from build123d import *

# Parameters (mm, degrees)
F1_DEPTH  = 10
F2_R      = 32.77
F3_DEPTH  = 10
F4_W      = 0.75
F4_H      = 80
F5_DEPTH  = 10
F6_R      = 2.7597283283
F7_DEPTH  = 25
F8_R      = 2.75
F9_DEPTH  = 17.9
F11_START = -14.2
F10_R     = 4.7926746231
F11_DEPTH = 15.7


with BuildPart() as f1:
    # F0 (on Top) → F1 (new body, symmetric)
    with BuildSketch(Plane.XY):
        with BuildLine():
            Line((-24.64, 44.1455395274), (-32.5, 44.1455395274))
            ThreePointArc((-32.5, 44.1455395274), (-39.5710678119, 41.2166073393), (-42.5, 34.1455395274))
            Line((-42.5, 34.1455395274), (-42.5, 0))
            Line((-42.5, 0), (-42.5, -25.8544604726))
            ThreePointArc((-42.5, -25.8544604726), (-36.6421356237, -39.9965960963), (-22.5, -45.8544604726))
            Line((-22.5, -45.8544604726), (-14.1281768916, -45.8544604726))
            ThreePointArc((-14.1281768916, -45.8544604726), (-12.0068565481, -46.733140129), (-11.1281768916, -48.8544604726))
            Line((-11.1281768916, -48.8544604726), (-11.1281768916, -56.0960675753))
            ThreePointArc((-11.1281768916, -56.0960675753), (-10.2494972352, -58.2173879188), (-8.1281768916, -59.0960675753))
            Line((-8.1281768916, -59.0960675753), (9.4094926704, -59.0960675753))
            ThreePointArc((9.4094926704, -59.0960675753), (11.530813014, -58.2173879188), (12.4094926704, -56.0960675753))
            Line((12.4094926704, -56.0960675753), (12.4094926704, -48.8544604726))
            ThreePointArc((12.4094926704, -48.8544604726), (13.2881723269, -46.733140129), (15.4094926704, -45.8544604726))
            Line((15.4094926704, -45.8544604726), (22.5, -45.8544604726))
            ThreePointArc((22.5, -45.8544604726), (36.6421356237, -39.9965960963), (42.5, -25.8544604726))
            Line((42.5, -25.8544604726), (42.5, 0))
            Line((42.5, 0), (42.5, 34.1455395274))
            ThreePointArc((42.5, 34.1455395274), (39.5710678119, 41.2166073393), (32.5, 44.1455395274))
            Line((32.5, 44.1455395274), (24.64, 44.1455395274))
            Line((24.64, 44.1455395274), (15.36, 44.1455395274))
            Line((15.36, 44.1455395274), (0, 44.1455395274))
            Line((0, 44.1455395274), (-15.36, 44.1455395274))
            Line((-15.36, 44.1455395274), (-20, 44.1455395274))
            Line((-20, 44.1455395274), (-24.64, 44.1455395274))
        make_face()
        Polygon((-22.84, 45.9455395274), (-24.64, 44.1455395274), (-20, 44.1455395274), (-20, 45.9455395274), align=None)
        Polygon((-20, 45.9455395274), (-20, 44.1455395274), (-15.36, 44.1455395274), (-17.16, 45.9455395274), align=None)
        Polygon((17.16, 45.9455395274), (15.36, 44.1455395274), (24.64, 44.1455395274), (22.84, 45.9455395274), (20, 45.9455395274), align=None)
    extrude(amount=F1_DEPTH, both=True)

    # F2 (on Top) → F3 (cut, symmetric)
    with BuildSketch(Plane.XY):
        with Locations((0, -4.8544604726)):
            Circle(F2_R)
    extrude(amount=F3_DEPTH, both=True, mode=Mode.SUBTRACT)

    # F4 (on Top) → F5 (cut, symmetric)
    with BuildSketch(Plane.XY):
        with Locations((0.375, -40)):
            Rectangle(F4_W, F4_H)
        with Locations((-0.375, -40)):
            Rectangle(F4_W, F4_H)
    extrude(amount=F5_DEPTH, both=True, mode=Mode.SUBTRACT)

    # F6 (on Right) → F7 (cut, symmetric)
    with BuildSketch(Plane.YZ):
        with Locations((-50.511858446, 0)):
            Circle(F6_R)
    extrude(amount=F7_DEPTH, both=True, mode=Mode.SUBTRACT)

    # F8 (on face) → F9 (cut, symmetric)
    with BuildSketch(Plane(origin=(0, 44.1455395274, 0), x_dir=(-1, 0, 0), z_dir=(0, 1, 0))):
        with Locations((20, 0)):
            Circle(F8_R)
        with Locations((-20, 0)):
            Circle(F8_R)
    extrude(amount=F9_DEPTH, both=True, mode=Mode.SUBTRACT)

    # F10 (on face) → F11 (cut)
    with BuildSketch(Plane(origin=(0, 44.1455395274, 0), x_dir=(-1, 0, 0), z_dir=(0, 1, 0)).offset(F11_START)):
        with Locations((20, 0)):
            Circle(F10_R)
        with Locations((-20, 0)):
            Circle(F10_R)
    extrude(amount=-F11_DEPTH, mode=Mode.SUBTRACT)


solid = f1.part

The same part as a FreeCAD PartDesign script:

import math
import FreeCAD as App
import Part
import Sketcher
Q = App.Units.Quantity


def add_polygon(sketch, points):
    """Adds a closed chain of lines whose ends are joined by coincident constraints."""
    first, n = sketch.GeometryCount, len(points)
    for a, b in zip(points, points[1:] + points[:1]):
        sketch.addGeometry(Part.LineSegment(App.Vector(*a, 0), App.Vector(*b, 0)), False)
    for i in range(n):
        sketch.addConstraint(Sketcher.Constraint("Coincident", first + i, 2, first + (i + 1) % n, 1))

doc = App.newDocument("Part")
body = doc.addObject("PartDesign::Body", "Body")

sketch1 = body.newObject("Sketcher::SketchObject", "Sketch")
sketch1.AttachmentSupport = (doc.getObject("XY_Plane"), [""])
sketch1.MapMode = "FlatFace"
sketch1.addGeometry([
    Part.ArcOfCircle(Part.Circle(App.Vector(-32.5, 34.1, 0), App.Vector(0, 0, 1), 10), math.radians(90), math.radians(180)),
    Part.LineSegment(App.Vector(-42.5, 34.1, 0), App.Vector(-42.5, -25.9, 0)),
    Part.ArcOfCircle(Part.Circle(App.Vector(-22.5, -25.9, 0), App.Vector(0, 0, 1), 20), math.radians(-180), math.radians(-90)),
    Part.LineSegment(App.Vector(-22.5, -45.9, 0), App.Vector(-14.1, -45.9, 0)),
    Part.ArcOfCircle(Part.Circle(App.Vector(-14.1, -48.9, 0), App.Vector(0, 0, 1), 3), math.radians(0), math.radians(90)),
    Part.LineSegment(App.Vector(-11.1, -48.9, 0), App.Vector(-11.1, -56.1, 0)),
    Part.ArcOfCircle(Part.Circle(App.Vector(-8.1, -56.1, 0), App.Vector(0, 0, 1), 3), math.radians(180), math.radians(270)),
    Part.LineSegment(App.Vector(-8.1, -59.1, 0), App.Vector(9.4, -59.1, 0)),
    Part.ArcOfCircle(Part.Circle(App.Vector(9.4, -56.1, 0), App.Vector(0, 0, 1), 3), math.radians(-90), math.radians(0)),
    Part.LineSegment(App.Vector(12.4, -56.1, 0), App.Vector(12.4, -48.9, 0)),
    Part.ArcOfCircle(Part.Circle(App.Vector(15.4, -48.9, 0), App.Vector(0, 0, 1), 3), math.radians(90), math.radians(180)),
    Part.LineSegment(App.Vector(15.4, -45.9, 0), App.Vector(22.5, -45.9, 0)),
    Part.ArcOfCircle(Part.Circle(App.Vector(22.5, -25.9, 0), App.Vector(0, 0, 1), 20), math.radians(-90), math.radians(0)),
    Part.LineSegment(App.Vector(42.5, -25.9, 0), App.Vector(42.5, 34.1, 0)),
    Part.ArcOfCircle(Part.Circle(App.Vector(32.5, 34.1, 0), App.Vector(0, 0, 1), 10), math.radians(0), math.radians(90)),
    Part.LineSegment(App.Vector(32.5, 44.1, 0), App.Vector(24.6, 44.1, 0)),
    Part.LineSegment(App.Vector(24.6, 44.1, 0), App.Vector(22.8, 45.9, 0)),
    Part.LineSegment(App.Vector(22.8, 45.9, 0), App.Vector(17.2, 45.9, 0)),
    Part.LineSegment(App.Vector(17.2, 45.9, 0), App.Vector(15.4, 44.1, 0)),
    Part.LineSegment(App.Vector(15.4, 44.1, 0), App.Vector(-15.4, 44.1, 0)),
    Part.LineSegment(App.Vector(-15.4, 44.1, 0), App.Vector(-17.2, 45.9, 0)),
    Part.LineSegment(App.Vector(-17.2, 45.9, 0), App.Vector(-22.8, 45.9, 0)),
    Part.LineSegment(App.Vector(-22.8, 45.9, 0), App.Vector(-24.6, 44.1, 0)),
    Part.LineSegment(App.Vector(-24.6, 44.1, 0), App.Vector(-32.5, 44.1, 0)),
], False)
sketch1.addConstraint([
    Sketcher.Constraint("Tangent", 0, 2, 1, 1),
    Sketcher.Constraint("Tangent", 1, 2, 2, 1),
    Sketcher.Constraint("Tangent", 2, 2, 3, 1),
    Sketcher.Constraint("Tangent", 3, 2, 4, 2),
    Sketcher.Constraint("Tangent", 4, 1, 5, 1),
    Sketcher.Constraint("Tangent", 5, 2, 6, 1),
    Sketcher.Constraint("Tangent", 6, 2, 7, 1),
    Sketcher.Constraint("Tangent", 7, 2, 8, 1),
    Sketcher.Constraint("Tangent", 8, 2, 9, 1),
    Sketcher.Constraint("Tangent", 9, 2, 10, 2),
    Sketcher.Constraint("Tangent", 10, 1, 11, 1),
    Sketcher.Constraint("Tangent", 11, 2, 12, 1),
    Sketcher.Constraint("Tangent", 12, 2, 13, 1),
    Sketcher.Constraint("Tangent", 13, 2, 14, 1),
    Sketcher.Constraint("Tangent", 14, 2, 15, 1),
    Sketcher.Constraint("Coincident", 15, 2, 16, 1),
    Sketcher.Constraint("Coincident", 16, 2, 17, 1),
    Sketcher.Constraint("Coincident", 17, 2, 18, 1),
    Sketcher.Constraint("Coincident", 18, 2, 19, 1),
    Sketcher.Constraint("Coincident", 19, 2, 20, 1),
    Sketcher.Constraint("Coincident", 20, 2, 21, 1),
    Sketcher.Constraint("Coincident", 21, 2, 22, 1),
    Sketcher.Constraint("Coincident", 22, 2, 23, 1),
    Sketcher.Constraint("Tangent", 23, 2, 0, 1),
    Sketcher.Constraint("Vertical", 1),
    Sketcher.Constraint("Horizontal", 3),
    Sketcher.Constraint("Vertical", 5),
    Sketcher.Constraint("Horizontal", 7),
    Sketcher.Constraint("Vertical", 9),
    Sketcher.Constraint("Horizontal", 11),
    Sketcher.Constraint("Vertical", 13),
    Sketcher.Constraint("Horizontal", 15),
    Sketcher.Constraint("Horizontal", 17),
    Sketcher.Constraint("Horizontal", 19),
    Sketcher.Constraint("Horizontal", 21),
    Sketcher.Constraint("Horizontal", 23),
    Sketcher.Constraint("Equal", 4, 6),
    Sketcher.Constraint("Equal", 6, 8),
    Sketcher.Constraint("Equal", 8, 10),
    Sketcher.Constraint("Equal", 2, 12),
    Sketcher.Constraint("Equal", 0, 14),
    Sketcher.Constraint("Symmetric", 2, 3, 12, 3, -2),
    Sketcher.Constraint("Symmetric", 17, 2, 20, 2, -2),
    Sketcher.Constraint("Symmetric", 15, 2, 22, 2, -2),
    Sketcher.Constraint("Perpendicular", 16, 18),
    Sketcher.Constraint("Perpendicular", 18, 20),
    Sketcher.Constraint("Perpendicular", 20, 22),
    Sketcher.Constraint("Horizontal", 15, 2, 18, 2),
    Sketcher.Constraint("Equal", 17, 21),
    Sketcher.Constraint("Radius", 0, Q("10 mm")),
    Sketcher.Constraint("Radius", 2, Q("20 mm")),
    Sketcher.Constraint("Radius", 4, Q("3 mm")),
    Sketcher.Constraint("DistanceY", 1, 2, 1, 1, Q("60 mm")),
    Sketcher.Constraint("DistanceX", 2, 3, 12, 3, Q("45 mm")),
    Sketcher.Constraint("DistanceX", 15, 2, 15, 1, Q("7.86 mm")),
    Sketcher.Constraint("DistanceX", 17, 2, 17, 1, Q("5.68 mm")),
    Sketcher.Constraint("DistanceX", 19, 2, 19, 1, Q("30.72 mm")),
    Sketcher.Constraint("DistanceX", 7, 1, 7, 2, Q("17.53767 mm")),
    Sketcher.Constraint("DistanceX", 3, 1, 3, 2, Q("8.371823 mm")),
    Sketcher.Constraint("DistanceY", 5, 2, 5, 1, Q("7.241607 mm")),
    Sketcher.Constraint("DistanceY", -1, 1, 0, 3, Q("34.14554 mm")),
])
pad1 = body.newObject("PartDesign::Pad", "Pad")
pad1.Profile = sketch1
pad1.Length = 20
pad1.Midplane = True

sketch2 = body.newObject("Sketcher::SketchObject", "Sketch001")
sketch2.AttachmentSupport = (doc.getObject("XY_Plane"), [""])
sketch2.MapMode = "FlatFace"
sketch2.addGeometry(Part.Circle(App.Vector(0, -5, 0), App.Vector(0, 0, 1), 33), False)
sketch2.addConstraint([
    Sketcher.Constraint("PointOnObject", 0, 3, -2),
    Sketcher.Constraint("Diameter", 0, Q("65.54 mm")),
    Sketcher.Constraint("DistanceY", 0, 3, -1, 1, Q("4.85446 mm")),
])
pocket1 = body.newObject("PartDesign::Pocket", "Pocket")
pocket1.Profile = sketch2
pocket1.Length = 20
pocket1.Midplane = True

sketch3 = body.newObject("Sketcher::SketchObject", "Sketch002")
sketch3.AttachmentSupport = (doc.getObject("XY_Plane"), [""])
sketch3.MapMode = "FlatFace"
add_polygon(sketch3, [(0.8, -80), (0.8, 0), (-0.8, 0), (-0.8, -80)])
sketch3.addConstraint([
    Sketcher.Constraint("Vertical", 0),
    Sketcher.Constraint("Horizontal", 1),
    Sketcher.Constraint("Vertical", 2),
    Sketcher.Constraint("Horizontal", 3),
    Sketcher.Constraint("Symmetric", 0, 2, 1, 2, -1, 1),
    Sketcher.Constraint("DistanceY", 0, 1, 0, 2, Q("80 mm")),
    Sketcher.Constraint("DistanceX", 1, 2, 1, 1, Q("1.5 mm")),
])
pocket2 = body.newObject("PartDesign::Pocket", "Pocket001")
pocket2.Profile = sketch3
pocket2.Length = 20
pocket2.Midplane = True

sketch4 = body.newObject("Sketcher::SketchObject", "Sketch003")
sketch4.AttachmentSupport = (doc.getObject("YZ_Plane"), [""])
sketch4.MapMode = "FlatFace"
sketch4.addGeometry(Part.Circle(App.Vector(-50.5, 0, 0), App.Vector(0, 0, 1), 2.8), False)
sketch4.addConstraint([
    Sketcher.Constraint("PointOnObject", 0, 3, -1),
    Sketcher.Constraint("Diameter", 0, Q("5.519457 mm")),
    Sketcher.Constraint("DistanceX", 0, 3, -1, 1, Q("50.511858 mm")),
])
pocket3 = body.newObject("PartDesign::Pocket", "Pocket002")
pocket3.Profile = sketch4
pocket3.Length = 50
pocket3.Midplane = True

sketch5 = body.newObject("Sketcher::SketchObject", "Sketch004")
sketch5.AttachmentSupport = (doc.getObject("XZ_Plane"), [""])
sketch5.MapMode = "FlatFace"
sketch5.AttachmentOffset = App.Placement(App.Vector(0, 0, -44.14554), App.Rotation())
sketch5.addGeometry([
    Part.Circle(App.Vector(-20, 0, 0), App.Vector(0, 0, 1), 2.8),
    Part.Circle(App.Vector(20, 0, 0), App.Vector(0, 0, 1), 2.8),
], False)
sketch5.addConstraint([
    Sketcher.Constraint("Equal", 0, 1),
    Sketcher.Constraint("Symmetric", 0, 3, 1, 3, -1, 1),
    Sketcher.Constraint("PointOnObject", 0, 3, -1),
    Sketcher.Constraint("Diameter", 0, Q("5.5 mm")),
    Sketcher.Constraint("DistanceX", 0, 3, -1, 1, Q("20 mm")),
])
pocket4 = body.newObject("PartDesign::Pocket", "Pocket003")
pocket4.Profile = sketch5
pocket4.Length = 35.8
pocket4.Midplane = True

sketch6 = body.newObject("Sketcher::SketchObject", "Sketch005")
sketch6.AttachmentSupport = (doc.getObject("XZ_Plane"), [""])
sketch6.MapMode = "FlatFace"
sketch6.AttachmentOffset = App.Placement(App.Vector(0, 0, -29.94554), App.Rotation())
sketch6.addGeometry([
    Part.Circle(App.Vector(-20, 0, 0), App.Vector(0, 0, 1), 4.8),
    Part.Circle(App.Vector(20, 0, 0), App.Vector(0, 0, 1), 4.8),
], False)
sketch6.addConstraint([
    Sketcher.Constraint("Equal", 0, 1),
    Sketcher.Constraint("Symmetric", 0, 3, 1, 3, -1, 1),
    Sketcher.Constraint("PointOnObject", 0, 3, -1),
    Sketcher.Constraint("DistanceX", 0, 3, -1, 1, Q("20 mm")),
    Sketcher.Constraint("Diameter", 0, Q("9.585349 mm")),
])
pocket5 = body.newObject("PartDesign::Pocket", "Pocket004")
pocket5.Profile = sketch6
pocket5.Length = 15.7
pocket5.Reversed = True

doc.recompute()
